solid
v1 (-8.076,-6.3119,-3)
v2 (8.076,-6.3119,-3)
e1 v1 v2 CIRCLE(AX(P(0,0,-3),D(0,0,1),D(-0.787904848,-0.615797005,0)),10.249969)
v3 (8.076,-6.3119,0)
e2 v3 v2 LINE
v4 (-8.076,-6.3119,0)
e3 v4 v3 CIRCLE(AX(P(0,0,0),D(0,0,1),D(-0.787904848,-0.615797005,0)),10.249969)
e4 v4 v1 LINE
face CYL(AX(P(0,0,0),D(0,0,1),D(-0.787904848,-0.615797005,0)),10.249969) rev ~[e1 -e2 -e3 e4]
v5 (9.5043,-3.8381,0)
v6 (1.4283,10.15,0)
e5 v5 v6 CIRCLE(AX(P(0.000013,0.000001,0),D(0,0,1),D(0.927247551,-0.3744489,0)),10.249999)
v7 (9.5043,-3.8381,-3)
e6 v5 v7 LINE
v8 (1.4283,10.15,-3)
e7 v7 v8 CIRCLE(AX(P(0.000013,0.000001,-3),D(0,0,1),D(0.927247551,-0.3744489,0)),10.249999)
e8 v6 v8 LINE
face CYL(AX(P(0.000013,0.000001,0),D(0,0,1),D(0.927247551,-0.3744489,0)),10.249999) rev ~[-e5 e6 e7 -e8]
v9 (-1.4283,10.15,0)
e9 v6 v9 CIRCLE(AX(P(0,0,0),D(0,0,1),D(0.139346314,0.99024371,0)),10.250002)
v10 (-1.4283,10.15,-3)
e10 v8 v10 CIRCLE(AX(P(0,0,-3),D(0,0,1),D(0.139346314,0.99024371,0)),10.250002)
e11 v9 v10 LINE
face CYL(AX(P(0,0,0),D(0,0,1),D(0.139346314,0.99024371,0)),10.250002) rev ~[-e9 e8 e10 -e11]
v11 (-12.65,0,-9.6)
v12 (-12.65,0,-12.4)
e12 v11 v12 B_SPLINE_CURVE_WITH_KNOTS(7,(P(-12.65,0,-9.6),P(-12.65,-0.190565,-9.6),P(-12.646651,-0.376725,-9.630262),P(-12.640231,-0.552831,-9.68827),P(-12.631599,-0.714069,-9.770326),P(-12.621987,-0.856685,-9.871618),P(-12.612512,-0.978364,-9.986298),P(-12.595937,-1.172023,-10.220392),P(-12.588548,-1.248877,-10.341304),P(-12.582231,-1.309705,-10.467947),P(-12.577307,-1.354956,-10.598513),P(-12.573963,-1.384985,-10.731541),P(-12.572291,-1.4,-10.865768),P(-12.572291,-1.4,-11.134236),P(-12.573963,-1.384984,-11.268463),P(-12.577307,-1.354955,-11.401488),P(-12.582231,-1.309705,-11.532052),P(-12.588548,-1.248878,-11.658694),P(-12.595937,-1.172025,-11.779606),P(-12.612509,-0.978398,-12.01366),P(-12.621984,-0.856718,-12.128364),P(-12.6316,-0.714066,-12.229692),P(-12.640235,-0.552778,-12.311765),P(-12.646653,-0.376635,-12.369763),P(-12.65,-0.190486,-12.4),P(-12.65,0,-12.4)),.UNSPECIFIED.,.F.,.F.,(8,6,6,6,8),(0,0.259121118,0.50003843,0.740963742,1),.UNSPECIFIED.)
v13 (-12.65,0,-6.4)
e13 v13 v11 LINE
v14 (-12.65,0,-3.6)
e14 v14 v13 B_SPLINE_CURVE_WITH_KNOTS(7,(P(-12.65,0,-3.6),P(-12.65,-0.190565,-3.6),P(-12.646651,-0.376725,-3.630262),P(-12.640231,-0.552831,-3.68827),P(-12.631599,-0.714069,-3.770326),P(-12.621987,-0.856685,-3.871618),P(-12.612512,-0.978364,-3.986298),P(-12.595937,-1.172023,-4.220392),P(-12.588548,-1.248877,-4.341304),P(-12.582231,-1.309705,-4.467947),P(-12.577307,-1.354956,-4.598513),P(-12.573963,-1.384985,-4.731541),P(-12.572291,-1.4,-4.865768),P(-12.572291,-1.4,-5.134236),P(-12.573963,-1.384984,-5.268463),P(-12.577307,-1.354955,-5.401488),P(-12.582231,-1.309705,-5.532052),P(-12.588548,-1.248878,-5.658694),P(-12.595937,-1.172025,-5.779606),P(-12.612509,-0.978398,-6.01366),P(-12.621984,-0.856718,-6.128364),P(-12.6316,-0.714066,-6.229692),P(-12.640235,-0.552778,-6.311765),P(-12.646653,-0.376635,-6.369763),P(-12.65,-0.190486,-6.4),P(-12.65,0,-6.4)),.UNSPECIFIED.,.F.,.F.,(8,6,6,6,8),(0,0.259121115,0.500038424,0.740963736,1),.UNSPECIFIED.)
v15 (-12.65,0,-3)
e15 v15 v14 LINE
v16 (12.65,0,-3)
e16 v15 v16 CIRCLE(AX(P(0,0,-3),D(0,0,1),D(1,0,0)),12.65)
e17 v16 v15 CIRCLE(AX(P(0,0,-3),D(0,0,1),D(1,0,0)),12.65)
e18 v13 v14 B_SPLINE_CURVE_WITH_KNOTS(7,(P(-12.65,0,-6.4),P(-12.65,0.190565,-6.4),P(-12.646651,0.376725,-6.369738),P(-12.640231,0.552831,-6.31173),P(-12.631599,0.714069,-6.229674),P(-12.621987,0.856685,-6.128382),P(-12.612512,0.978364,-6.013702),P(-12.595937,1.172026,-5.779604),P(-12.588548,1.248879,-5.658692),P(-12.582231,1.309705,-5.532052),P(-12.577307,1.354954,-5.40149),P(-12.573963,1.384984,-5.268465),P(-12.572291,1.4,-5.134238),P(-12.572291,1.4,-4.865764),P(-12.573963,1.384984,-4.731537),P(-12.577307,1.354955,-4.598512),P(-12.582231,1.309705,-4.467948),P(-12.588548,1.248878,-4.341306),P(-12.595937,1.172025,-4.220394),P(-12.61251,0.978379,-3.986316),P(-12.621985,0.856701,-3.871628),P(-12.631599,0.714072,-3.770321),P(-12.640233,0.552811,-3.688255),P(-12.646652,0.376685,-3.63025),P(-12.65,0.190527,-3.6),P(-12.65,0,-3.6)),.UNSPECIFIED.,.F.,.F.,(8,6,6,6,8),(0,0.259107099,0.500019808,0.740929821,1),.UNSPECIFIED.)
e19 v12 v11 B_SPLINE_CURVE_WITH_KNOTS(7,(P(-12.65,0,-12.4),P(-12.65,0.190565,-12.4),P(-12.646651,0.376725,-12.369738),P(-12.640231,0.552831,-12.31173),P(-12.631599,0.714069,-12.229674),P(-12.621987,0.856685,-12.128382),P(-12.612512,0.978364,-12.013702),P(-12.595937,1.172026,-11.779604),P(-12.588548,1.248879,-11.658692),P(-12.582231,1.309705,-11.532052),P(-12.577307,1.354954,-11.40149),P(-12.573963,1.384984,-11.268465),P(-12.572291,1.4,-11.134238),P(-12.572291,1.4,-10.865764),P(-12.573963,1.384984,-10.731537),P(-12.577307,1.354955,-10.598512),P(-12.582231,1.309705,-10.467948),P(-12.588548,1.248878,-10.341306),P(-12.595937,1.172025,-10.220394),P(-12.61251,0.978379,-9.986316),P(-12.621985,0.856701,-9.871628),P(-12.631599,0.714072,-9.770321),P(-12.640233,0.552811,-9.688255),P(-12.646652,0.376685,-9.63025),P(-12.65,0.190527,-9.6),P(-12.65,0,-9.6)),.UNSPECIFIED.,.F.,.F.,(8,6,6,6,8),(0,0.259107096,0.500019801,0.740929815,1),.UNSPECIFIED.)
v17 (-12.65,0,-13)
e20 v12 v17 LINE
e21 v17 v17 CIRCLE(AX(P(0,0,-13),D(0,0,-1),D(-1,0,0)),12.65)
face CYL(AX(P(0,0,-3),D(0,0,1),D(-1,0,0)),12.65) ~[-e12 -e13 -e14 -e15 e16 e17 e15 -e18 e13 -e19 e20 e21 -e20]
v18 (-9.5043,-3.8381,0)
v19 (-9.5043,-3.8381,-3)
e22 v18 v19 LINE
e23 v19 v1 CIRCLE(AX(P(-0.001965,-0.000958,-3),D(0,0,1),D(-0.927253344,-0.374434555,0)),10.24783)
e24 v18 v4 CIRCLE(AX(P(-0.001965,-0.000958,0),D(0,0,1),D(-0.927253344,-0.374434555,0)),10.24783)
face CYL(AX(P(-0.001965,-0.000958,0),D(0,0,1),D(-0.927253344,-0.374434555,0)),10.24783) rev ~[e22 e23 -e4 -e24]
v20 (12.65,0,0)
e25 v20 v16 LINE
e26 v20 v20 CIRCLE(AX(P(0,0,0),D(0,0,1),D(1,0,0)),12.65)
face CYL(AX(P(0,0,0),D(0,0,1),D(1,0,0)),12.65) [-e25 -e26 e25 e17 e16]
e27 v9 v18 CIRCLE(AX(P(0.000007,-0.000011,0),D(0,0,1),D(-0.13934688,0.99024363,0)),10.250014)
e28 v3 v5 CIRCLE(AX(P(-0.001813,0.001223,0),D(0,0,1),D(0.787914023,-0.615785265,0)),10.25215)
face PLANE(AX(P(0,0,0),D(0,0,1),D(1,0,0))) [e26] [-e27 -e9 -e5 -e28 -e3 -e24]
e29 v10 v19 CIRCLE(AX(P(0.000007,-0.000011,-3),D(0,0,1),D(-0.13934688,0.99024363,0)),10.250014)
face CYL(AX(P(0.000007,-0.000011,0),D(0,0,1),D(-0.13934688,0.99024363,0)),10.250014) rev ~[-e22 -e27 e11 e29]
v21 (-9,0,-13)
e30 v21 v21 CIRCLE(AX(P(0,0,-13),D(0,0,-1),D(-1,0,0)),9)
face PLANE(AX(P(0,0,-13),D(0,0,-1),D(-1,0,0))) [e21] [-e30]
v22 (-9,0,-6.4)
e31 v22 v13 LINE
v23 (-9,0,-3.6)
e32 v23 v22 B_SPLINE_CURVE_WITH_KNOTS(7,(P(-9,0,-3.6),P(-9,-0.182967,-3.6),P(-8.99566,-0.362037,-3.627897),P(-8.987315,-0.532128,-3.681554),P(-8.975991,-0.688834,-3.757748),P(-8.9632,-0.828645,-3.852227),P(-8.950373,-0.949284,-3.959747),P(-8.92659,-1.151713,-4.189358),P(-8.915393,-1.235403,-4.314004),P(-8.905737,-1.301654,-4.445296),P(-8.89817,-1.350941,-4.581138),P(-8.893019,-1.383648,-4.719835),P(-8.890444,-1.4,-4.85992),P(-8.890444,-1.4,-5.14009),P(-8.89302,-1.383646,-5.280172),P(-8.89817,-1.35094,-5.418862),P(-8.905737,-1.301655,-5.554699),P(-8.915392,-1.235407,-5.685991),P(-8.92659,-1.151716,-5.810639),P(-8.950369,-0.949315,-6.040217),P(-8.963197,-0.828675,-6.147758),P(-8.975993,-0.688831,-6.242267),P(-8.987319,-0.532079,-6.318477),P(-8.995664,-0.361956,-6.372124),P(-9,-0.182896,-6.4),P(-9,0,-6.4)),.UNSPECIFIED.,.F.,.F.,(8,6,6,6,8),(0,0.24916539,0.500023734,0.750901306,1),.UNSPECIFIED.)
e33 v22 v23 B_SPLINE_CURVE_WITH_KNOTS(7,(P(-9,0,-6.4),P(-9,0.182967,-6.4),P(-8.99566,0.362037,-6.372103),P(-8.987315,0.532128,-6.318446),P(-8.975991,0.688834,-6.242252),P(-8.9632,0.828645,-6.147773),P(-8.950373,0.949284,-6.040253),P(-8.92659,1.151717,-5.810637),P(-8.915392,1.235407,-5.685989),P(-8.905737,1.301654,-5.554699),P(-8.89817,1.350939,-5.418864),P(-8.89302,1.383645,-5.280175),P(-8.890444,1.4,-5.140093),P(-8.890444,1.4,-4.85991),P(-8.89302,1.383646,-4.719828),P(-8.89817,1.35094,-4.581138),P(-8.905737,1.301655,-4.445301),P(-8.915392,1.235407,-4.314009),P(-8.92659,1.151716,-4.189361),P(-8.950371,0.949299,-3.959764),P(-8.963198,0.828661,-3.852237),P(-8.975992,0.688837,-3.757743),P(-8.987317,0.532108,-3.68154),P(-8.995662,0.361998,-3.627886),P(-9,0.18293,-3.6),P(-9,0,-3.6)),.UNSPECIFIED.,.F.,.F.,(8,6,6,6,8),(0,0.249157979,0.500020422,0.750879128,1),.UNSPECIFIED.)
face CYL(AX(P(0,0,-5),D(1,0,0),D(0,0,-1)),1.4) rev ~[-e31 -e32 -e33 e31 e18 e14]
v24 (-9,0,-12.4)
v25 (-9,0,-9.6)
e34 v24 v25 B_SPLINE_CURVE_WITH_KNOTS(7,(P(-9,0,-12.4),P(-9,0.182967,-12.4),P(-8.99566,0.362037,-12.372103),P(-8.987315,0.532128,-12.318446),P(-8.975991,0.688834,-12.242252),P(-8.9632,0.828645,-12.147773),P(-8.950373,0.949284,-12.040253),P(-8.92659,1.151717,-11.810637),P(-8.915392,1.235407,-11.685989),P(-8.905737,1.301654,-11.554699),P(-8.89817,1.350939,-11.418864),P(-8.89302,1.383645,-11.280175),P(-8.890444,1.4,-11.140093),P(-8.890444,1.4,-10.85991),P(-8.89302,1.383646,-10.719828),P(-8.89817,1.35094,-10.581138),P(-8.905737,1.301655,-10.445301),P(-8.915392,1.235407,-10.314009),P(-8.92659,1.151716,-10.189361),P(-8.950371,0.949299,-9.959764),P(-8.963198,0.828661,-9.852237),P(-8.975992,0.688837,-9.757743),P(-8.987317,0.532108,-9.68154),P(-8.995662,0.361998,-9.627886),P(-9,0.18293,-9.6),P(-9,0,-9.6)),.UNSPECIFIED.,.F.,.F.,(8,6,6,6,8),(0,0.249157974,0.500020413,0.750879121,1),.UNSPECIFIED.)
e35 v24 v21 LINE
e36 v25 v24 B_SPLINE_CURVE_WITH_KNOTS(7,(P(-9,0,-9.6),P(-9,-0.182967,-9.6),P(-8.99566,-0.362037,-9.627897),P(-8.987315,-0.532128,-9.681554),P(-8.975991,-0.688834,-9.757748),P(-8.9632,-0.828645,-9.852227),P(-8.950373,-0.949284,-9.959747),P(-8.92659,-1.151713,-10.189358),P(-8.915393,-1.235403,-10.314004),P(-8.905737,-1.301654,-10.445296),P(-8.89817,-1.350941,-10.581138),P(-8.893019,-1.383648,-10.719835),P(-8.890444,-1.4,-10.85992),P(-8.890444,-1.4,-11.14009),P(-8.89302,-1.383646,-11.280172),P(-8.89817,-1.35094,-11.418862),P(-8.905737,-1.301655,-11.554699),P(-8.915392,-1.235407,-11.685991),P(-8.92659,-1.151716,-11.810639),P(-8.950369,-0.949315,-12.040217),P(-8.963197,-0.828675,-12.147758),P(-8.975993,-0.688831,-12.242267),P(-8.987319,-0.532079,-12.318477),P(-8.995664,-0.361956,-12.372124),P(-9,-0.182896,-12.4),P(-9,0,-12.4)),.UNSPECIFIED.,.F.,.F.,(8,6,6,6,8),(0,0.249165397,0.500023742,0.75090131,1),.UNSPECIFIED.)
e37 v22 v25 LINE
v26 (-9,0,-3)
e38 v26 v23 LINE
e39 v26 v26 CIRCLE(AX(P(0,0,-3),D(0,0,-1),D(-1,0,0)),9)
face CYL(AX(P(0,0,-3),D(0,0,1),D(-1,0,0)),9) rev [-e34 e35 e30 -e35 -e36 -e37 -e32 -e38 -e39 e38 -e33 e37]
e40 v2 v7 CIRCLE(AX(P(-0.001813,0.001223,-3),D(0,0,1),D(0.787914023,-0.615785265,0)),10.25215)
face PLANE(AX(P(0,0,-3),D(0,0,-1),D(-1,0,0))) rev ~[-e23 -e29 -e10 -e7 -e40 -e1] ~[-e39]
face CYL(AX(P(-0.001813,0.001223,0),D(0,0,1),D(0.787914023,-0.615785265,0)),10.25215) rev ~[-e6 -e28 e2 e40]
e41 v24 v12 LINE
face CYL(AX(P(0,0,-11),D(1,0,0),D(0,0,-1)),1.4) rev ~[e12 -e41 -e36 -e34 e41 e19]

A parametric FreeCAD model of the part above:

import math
import FreeCAD as App
import Part
import Sketcher
from FreeCAD import Vector

doc = App.newDocument("Part")
body = doc.addObject("PartDesign::Body", "Body")

sketch1 = doc.addObject("Sketcher::SketchObject", "Sketch")
body.addObject(sketch1)
sketch1.AttachmentSupport = (doc.XY_Plane, [""])
sketch1.MapMode = "FlatFace"
sketch1.addGeometry([
    Part.Circle(Vector(0, 0, 0), Vector(0, 0, 1), 12.65),
    Part.ArcOfCircle(Part.Circle(Vector(0, 0, 0), Vector(0, 0, 1), 10.250011), math.radians(98.010022), math.radians(201.990223)),
    Part.ArcOfCircle(Part.Circle(Vector(0, 0, 0), Vector(0, 0, 1), 10.250002), math.radians(81.989978), math.radians(98.010022)),
    Part.ArcOfCircle(Part.Circle(Vector(0, 0, 0), Vector(0, 0, 1), 10.250002), math.radians(-21.990223), math.radians(81.989978)),
    Part.ArcOfCircle(Part.Circle(Vector(-0.001813, 0.001223, 0), Vector(0, 0, 1), 10.25215), math.radians(-38.009001), math.radians(-21.992767)),
    Part.ArcOfCircle(Part.Circle(Vector(0, 0, 0), Vector(0, 0, 1), 10.249969), math.radians(-141.990145), math.radians(-38.009855)),
    Part.ArcOfCircle(Part.Circle(Vector(-0.001965, -0.000958, 0), Vector(0, 0, 1), 10.24783), math.radians(-158.010631), math.radians(-141.987601)),
], False)
sketch1.addConstraint([
    Sketcher.Constraint("Coincident", 1, 1, 2, 2),
    Sketcher.Constraint("Coincident", 2, 1, 3, 2),
    Sketcher.Constraint("Coincident", 3, 1, 4, 2),
    Sketcher.Constraint("Coincident", 4, 1, 5, 2),
    Sketcher.Constraint("Coincident", 5, 1, 6, 2),
    Sketcher.Constraint("Coincident", 6, 1, 1, 2),
    Sketcher.Constraint("Coincident", 0, 3, -1, 1),
    Sketcher.Constraint("Coincident", 1, 3, -1, 1),
    Sketcher.Constraint("Coincident", 2, 3, -1, 1),
    Sketcher.Constraint("Coincident", 3, 3, -1, 1),
    Sketcher.Constraint("Coincident", 5, 3, -1, 1),
    Sketcher.Constraint("Diameter", 0, 25.3),
    Sketcher.Constraint("Radius", 1, 10.25),
    Sketcher.Constraint("Radius", 5, 10.25),
    Sketcher.Constraint("DistanceY", -1, 1, 1, 1, 10.15),
    Sketcher.Constraint("DistanceY", -1, 1, 2, 1, 10.15),
    Sketcher.Constraint("Radius", 4, 10.2522),
    Sketcher.Constraint("Radius", 6, 10.2478),
    Sketcher.Constraint("DistanceY", 3, 1, -1, 1, 3.838),
    Sketcher.Constraint("DistanceX", -1, 1, 4, 1, 8.076),
    Sketcher.Constraint("DistanceX", 5, 1, -1, 1, 8.076),
    Sketcher.Constraint("DistanceY", 6, 1, -1, 1, 3.838),
])
pad1 = doc.addObject("PartDesign::Pad", "Pad")
body.addObject(pad1)
pad1.Profile = sketch1
pad1.Length = 3
pad1.Reversed = True

sketch2 = doc.addObject("Sketcher::SketchObject", "Sketch001")
body.addObject(sketch2)
sketch2.AttachmentSupport = (doc.XY_Plane, [""])
sketch2.MapMode = "FlatFace"
sketch2.AttachmentOffset = App.Placement(Vector(0, 0, -3), App.Rotation())
sketch2.addGeometry([
    Part.Circle(Vector(0, 0, 0), Vector(0, 0, 1), 12.65),
    Part.Circle(Vector(0, 0, 0), Vector(0, 0, 1), 9),
], False)
sketch2.addConstraint([
    Sketcher.Constraint("Coincident", 0, 3, -1, 1),
    Sketcher.Constraint("Coincident", 1, 3, -1, 1),
    Sketcher.Constraint("Diameter", 1, 18.0),
    Sketcher.Constraint("Diameter", 0, 25.3),
])
pad2 = doc.addObject("PartDesign::Pad", "Pad001")
body.addObject(pad2)
pad2.Profile = sketch2
pad2.Length = 10
pad2.Reversed = True

sketch3 = doc.addObject("Sketcher::SketchObject", "Sketch002")
body.addObject(sketch3)
sketch3.AttachmentSupport = (doc.YZ_Plane, [""])
sketch3.MapMode = "FlatFace"
sketch3.addGeometry([
    Part.Circle(Vector(0, -11, 0), Vector(0, 0, 1), 1.4),
    Part.Circle(Vector(0, -5, 0), Vector(0, 0, 1), 1.4),
], False)
sketch3.addConstraint([
    Sketcher.Constraint("Equal", 0, 1),
    Sketcher.Constraint("PointOnObject", 0, 3, -2),
    Sketcher.Constraint("PointOnObject", 1, 3, -2),
    Sketcher.Constraint("Diameter", 0, 2.8),
    Sketcher.Constraint("DistanceY", 0, 3, 1, 3, 6.0),
    Sketcher.Constraint("DistanceY", 0, 3, -1, 1, 11.0),
])
pocket1 = doc.addObject("PartDesign::Pocket", "Pocket")
body.addObject(pocket1)
pocket1.Profile = sketch3
pocket1.Type = "ThroughAll"

doc.recompute()
